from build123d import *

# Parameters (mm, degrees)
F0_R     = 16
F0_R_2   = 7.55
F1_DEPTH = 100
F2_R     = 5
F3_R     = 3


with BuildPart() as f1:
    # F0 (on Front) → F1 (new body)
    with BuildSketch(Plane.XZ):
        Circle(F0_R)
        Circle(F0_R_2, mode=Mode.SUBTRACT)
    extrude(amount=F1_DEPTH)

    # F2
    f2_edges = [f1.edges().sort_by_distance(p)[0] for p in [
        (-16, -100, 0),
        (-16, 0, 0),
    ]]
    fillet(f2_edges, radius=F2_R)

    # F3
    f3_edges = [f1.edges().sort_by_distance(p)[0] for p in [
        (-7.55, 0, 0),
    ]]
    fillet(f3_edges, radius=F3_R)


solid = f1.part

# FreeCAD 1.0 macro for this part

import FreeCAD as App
import Part
import Sketcher
from FreeCAD import Vector
Q = App.Units.Quantity


def edges_at(feature, points):
    """Names of the edges that pass closest to the given points."""
    edges = feature.Shape.Edges
    near = lambda p: min(range(len(edges)), key=lambda i: edges[i].distToShape(Part.Vertex(*p))[0])
    return sorted({f"Edge{near(p) + 1}" for p in points})

doc = App.newDocument("Part")
body = doc.addObject("PartDesign::Body", "Body")

# Sketch on XZ plane
sketch1 = body.newObject("Sketcher::SketchObject", "Sketch")
sketch1.AttachmentSupport = (doc.getObject("XZ_Plane"), [""])
sketch1.MapMode = "FlatFace"
sketch1.addGeometry([
    Part.Circle(Vector(0, 0, 0), Vector(0, 0, 1), 16),
    Part.Circle(Vector(0, 0, 0), Vector(0, 0, 1), 8),
], False)
sketch1.addConstraint([
    Sketcher.Constraint("Coincident", 0, 3, -1, 1),
    Sketcher.Constraint("Coincident", 1, 3, -1, 1),
    Sketcher.Constraint("Diameter", 0, Q("32 mm")),
    Sketcher.Constraint("Diameter", 1, Q("15.1 mm")),
])
pad1 = body.newObject("PartDesign::Pad", "Pad")
pad1.Profile = sketch1
pad1.Length = 100
doc.recompute()

fillet = body.newObject("PartDesign::Fillet", "Fillet")
fillet.Base = (pad1, edges_at(pad1, [(-16, -100, 0), (-16, 0, 0)]))
fillet.Radius = 5
doc.recompute()

fillet2 = body.newObject("PartDesign::Fillet", "Fillet001")
fillet2.Base = (fillet, edges_at(fillet, [(-7.55, 0, 0)]))
fillet2.Radius = 3

doc.recompute()
